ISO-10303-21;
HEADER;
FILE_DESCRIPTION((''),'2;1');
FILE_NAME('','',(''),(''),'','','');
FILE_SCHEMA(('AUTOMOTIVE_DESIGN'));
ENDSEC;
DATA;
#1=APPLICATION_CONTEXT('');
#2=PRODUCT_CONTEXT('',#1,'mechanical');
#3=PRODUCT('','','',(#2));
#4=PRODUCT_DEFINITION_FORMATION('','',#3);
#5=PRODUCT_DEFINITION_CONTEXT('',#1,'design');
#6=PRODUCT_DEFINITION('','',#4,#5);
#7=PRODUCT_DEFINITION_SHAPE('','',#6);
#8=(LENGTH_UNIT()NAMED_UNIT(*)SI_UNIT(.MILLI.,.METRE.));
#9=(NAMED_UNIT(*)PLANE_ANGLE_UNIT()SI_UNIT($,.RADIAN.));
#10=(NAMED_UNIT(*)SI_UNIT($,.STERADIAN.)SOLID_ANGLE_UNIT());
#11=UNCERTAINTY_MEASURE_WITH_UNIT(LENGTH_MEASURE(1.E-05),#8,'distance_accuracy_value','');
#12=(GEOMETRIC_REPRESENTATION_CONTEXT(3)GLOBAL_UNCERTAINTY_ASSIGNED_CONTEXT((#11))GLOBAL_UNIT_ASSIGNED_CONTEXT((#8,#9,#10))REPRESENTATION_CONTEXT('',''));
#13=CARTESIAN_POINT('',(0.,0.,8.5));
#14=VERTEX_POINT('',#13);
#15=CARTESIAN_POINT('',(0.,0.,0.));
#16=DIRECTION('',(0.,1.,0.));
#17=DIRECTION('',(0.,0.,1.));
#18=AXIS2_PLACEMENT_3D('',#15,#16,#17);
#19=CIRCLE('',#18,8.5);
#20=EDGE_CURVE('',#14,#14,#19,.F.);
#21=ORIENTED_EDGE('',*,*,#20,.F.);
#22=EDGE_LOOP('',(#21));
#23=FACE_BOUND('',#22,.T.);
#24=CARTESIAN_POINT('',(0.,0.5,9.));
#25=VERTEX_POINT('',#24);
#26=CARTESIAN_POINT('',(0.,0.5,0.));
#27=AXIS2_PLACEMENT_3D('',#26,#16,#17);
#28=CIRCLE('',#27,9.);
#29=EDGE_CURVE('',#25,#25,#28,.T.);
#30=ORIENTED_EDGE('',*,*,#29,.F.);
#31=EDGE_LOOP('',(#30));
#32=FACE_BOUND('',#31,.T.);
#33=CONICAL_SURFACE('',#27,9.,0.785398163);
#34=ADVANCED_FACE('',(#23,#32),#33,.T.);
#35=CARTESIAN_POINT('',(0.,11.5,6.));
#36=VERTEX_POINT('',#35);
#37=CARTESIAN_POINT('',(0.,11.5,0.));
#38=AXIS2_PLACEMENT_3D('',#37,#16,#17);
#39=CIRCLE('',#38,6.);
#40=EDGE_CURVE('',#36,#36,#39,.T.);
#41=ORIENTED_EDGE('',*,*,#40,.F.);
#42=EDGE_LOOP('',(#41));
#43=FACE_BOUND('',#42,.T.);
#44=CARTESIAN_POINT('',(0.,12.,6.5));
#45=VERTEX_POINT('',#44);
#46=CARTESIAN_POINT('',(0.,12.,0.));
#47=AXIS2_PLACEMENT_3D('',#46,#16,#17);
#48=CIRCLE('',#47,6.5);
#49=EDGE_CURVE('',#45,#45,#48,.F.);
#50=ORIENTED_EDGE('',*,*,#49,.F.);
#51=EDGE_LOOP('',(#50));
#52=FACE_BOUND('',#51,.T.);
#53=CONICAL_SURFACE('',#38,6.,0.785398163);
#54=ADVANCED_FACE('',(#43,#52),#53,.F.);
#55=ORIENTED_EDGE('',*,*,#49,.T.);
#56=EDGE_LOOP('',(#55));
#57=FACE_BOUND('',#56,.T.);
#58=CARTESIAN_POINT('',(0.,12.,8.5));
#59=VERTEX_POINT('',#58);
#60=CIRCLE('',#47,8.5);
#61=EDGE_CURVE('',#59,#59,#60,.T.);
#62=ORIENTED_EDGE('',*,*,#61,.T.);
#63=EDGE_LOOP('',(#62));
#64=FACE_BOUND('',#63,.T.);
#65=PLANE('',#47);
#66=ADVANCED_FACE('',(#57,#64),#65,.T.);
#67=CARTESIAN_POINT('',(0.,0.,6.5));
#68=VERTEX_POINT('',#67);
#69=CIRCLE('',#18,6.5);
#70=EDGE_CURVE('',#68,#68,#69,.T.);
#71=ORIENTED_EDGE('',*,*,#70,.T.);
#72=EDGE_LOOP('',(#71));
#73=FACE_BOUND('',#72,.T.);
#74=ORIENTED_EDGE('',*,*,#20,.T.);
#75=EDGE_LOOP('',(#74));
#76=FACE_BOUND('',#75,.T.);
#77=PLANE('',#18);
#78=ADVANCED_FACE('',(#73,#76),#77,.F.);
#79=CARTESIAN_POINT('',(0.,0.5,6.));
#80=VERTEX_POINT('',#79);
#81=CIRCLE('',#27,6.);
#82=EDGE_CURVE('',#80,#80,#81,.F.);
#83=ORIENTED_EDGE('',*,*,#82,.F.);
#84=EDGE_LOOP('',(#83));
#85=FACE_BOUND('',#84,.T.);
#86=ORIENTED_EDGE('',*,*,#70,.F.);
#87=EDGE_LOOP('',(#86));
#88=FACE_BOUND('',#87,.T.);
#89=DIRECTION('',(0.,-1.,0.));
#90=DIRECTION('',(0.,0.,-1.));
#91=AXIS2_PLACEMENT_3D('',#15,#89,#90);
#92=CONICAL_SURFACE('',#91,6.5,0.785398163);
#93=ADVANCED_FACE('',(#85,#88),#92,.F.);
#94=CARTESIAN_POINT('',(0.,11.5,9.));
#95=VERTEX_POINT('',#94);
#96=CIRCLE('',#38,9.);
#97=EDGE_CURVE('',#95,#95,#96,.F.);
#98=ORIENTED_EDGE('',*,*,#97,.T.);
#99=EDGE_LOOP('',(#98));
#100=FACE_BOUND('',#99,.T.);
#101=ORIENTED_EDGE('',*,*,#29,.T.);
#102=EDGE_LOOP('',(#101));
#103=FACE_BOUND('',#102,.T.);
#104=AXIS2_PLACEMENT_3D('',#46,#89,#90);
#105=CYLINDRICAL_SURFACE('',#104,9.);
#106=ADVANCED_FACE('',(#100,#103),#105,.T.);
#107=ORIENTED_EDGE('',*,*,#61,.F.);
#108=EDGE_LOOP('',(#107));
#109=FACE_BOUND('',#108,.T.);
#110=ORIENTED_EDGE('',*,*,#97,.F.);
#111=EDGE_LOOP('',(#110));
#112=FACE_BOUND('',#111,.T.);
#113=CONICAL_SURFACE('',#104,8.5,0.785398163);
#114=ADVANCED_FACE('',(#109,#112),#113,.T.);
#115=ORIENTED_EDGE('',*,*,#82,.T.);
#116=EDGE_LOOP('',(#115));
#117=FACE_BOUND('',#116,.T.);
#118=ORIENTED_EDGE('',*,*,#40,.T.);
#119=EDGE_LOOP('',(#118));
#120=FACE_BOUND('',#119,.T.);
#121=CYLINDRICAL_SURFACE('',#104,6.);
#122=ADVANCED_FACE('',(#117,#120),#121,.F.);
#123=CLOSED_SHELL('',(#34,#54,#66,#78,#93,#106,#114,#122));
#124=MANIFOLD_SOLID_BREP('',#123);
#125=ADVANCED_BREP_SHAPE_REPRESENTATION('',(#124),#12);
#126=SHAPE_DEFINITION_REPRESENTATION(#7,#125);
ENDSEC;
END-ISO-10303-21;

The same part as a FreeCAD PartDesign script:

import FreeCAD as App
import Part
import Sketcher
from FreeCAD import Vector
Q = App.Units.Quantity


def edges_at(feature, points):
    """Names of the edges that pass closest to the given points."""
    edges = feature.Shape.Edges
    near = lambda p: min(range(len(edges)), key=lambda i: edges[i].distToShape(Part.Vertex(*p))[0])
    return sorted({f"Edge{near(p) + 1}" for p in points})

doc = App.newDocument("Part")
body = doc.addObject("PartDesign::Body", "Body")

# Sketch on XZ plane
sketch1 = doc.addObject("Sketcher::SketchObject", "Sketch")
body.addObject(sketch1)
sketch1.AttachmentSupport = (doc.XZ_Plane, [""])
sketch1.MapMode = "FlatFace"
sketch1.addGeometry([
    Part.Circle(Vector(0, 0, 0), Vector(0, 0, 1), 9),
    Part.Circle(Vector(0, 0, 0), Vector(0, 0, 1), 6),
], False)
sketch1.addConstraint([
    Sketcher.Constraint("Coincident", 0, 3, -1, 1),
    Sketcher.Constraint("Coincident", 1, 3, -1, 1),
    Sketcher.Constraint("Diameter", 0, Q("18 mm")),
    Sketcher.Constraint("Diameter", 1, Q("12 mm")),
])
pad1 = doc.addObject("PartDesign::Pad", "Pad")
body.addObject(pad1)
pad1.Profile = sketch1
pad1.Length = 12
pad1.Reversed = True
doc.recompute()

chamfer = doc.addObject("PartDesign::Chamfer", "Chamfer")
body.addObject(chamfer)
chamfer.Base = (pad1, edges_at(pad1, [
    (0, 0, -9),
    (0, 12, -9),
    (0, 0, -6),
    (0, 12, -6),
]))
chamfer.Size = 0.5

doc.recompute()
